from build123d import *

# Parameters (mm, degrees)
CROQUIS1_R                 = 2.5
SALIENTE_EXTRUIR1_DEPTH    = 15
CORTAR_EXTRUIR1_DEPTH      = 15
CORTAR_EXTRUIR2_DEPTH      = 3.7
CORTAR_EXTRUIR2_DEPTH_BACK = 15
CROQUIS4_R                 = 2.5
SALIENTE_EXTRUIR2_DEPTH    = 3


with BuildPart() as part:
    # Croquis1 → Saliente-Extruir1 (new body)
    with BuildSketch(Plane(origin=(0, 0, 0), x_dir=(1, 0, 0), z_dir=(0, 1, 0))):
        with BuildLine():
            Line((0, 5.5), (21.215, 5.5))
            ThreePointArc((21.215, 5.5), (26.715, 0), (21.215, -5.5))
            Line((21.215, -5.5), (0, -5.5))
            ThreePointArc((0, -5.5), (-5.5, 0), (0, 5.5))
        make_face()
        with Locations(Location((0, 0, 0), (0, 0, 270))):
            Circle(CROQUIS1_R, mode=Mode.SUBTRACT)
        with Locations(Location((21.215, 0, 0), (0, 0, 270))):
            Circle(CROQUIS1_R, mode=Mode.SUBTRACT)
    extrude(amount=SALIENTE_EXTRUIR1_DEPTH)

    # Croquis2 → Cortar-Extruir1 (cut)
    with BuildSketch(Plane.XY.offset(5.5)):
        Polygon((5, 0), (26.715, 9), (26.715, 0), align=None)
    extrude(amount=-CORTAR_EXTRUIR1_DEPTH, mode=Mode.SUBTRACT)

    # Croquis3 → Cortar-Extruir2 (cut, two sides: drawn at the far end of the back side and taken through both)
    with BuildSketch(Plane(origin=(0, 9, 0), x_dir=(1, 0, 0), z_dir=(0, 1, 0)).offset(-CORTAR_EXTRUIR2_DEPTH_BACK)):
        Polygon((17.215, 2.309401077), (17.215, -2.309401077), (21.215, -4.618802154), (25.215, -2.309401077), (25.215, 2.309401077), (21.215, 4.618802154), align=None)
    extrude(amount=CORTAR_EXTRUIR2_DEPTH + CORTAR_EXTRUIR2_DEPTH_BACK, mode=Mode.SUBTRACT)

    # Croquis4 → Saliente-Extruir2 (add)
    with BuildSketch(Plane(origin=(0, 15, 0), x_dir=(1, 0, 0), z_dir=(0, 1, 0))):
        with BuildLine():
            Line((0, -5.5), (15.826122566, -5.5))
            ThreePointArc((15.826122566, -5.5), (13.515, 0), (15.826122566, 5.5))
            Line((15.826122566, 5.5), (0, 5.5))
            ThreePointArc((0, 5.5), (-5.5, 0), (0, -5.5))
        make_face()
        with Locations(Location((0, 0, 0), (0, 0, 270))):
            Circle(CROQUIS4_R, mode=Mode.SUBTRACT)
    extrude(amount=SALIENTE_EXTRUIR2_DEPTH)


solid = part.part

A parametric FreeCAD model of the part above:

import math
import FreeCAD as App
import Part
import Sketcher
from FreeCAD import Vector
Q = App.Units.Quantity

doc = App.newDocument("Part")
body = doc.addObject("PartDesign::Body", "Body")

# Sketch on XZ plane
sketch1 = body.newObject("Sketcher::SketchObject", "Sketch")
sketch1.AttachmentSupport = (doc.getObject("XZ_Plane"), [""])
sketch1.MapMode = "FlatFace"
sketch1.addGeometry(Part.LineSegment(Vector(21.2, -5.5, 0), Vector(0, -5.5, 0)), False)
sketch1.addGeometry(Part.ArcOfCircle(Part.Circle(Vector(0, 0, 0), Vector(0, 0, 1), 5.5), math.radians(90), math.radians(270)), False)
sketch1.addGeometry(Part.LineSegment(Vector(0, 5.5, 0), Vector(21.2, 5.5, 0)), False)
sketch1.addGeometry(Part.ArcOfCircle(Part.Circle(Vector(21.2, 0, 0), Vector(0, 0, 1), 5.5), math.radians(-90), math.radians(90)), False)
sketch1.addGeometry(Part.Circle(Vector(21.2, 0, 0), Vector(0, 0, 1), 2.5), False)
sketch1.addGeometry(Part.Circle(Vector(0, 0, 0), Vector(0, 0, 1), 2.5), False)
sketch1.addConstraint(Sketcher.Constraint("Tangent", 0, 2, 1, 2))
sketch1.addConstraint(Sketcher.Constraint("Tangent", 1, 1, 2, 1))
sketch1.addConstraint(Sketcher.Constraint("Tangent", 2, 2, 3, 2))
sketch1.addConstraint(Sketcher.Constraint("Tangent", 3, 1, 0, 1))
sketch1.addConstraint(Sketcher.Constraint("Horizontal", 0))
sketch1.addConstraint(Sketcher.Constraint("Horizontal", 2))
sketch1.addConstraint(Sketcher.Constraint("Coincident", 1, 3, -1, 1))
sketch1.addConstraint(Sketcher.Constraint("Coincident", 5, 3, -1, 1))
sketch1.addConstraint(Sketcher.Constraint("Coincident", 4, 3, 3, 3))
sketch1.addConstraint(Sketcher.Constraint("Equal", 4, 5))
sketch1.addConstraint(Sketcher.Constraint("Diameter", 4, 5.0))
sketch1.addConstraint(Sketcher.Constraint("Radius", 1, 5.5))
sketch1.addConstraint(Sketcher.Constraint("DistanceX", 0, 2, 0, 1, 21.215))
pad1 = body.newObject("PartDesign::Pad", "Pad")
pad1.Profile = sketch1
pad1.Length = 15
pad1.Reversed = True

# Sketch on XY plane
sketch2 = body.newObject("Sketcher::SketchObject", "Sketch001")
sketch2.AttachmentSupport = (doc.getObject("XY_Plane"), [""])
sketch2.MapMode = "FlatFace"
sketch2.AttachmentOffset = App.Placement(Vector(0, 0, 5.5), App.Rotation())
sketch2.addGeometry(Part.LineSegment(Vector(27, 9, 0), Vector(5, 0, 0)), False)
sketch2.addGeometry(Part.LineSegment(Vector(5, 0, 0), Vector(27, 0, 0)), False)
sketch2.addGeometry(Part.LineSegment(Vector(27, 0, 0), Vector(27, 9, 0)), False)
sketch2.addConstraint(Sketcher.Constraint("Coincident", 0, 2, 1, 1))
sketch2.addConstraint(Sketcher.Constraint("Coincident", 1, 2, 2, 1))
sketch2.addConstraint(Sketcher.Constraint("Coincident", 2, 2, 0, 1))
sketch2.addConstraint(Sketcher.Constraint("Horizontal", 1))
sketch2.addConstraint(Sketcher.Constraint("Vertical", 2))
sketch2.addConstraint(Sketcher.Constraint("PointOnObject", 0, 2, -1))
sketch2.addConstraint(Sketcher.Constraint("DistanceY", 2, 1, 2, 2, 9.0))
sketch2.addConstraint(Sketcher.Constraint("DistanceX", -1, 1, 0, 2, 5.0))
sketch2.addConstraint(Sketcher.Constraint("DistanceX", 1, 1, 1, 2, 21.715))
pocket1 = body.newObject("PartDesign::Pocket", "Pocket")
pocket1.Profile = sketch2
pocket1.Length = 15

# Sketch on XZ plane
sketch3 = body.newObject("Sketcher::SketchObject", "Sketch002")
sketch3.AttachmentSupport = (doc.getObject("XZ_Plane"), [""])
sketch3.MapMode = "FlatFace"
sketch3.AttachmentOffset = App.Placement(Vector(0, 0, -9), App.Rotation())
sketch3.addGeometry(Part.LineSegment(Vector(17.2, -2.3, 0), Vector(17.2, 2.3, 0)), False)
sketch3.addGeometry(Part.LineSegment(Vector(17.2, 2.3, 0), Vector(21.2, 4.6, 0)), False)
sketch3.addGeometry(Part.LineSegment(Vector(21.2, 4.6, 0), Vector(25.2, 2.3, 0)), False)
sketch3.addGeometry(Part.LineSegment(Vector(25.2, 2.3, 0), Vector(25.2, -2.3, 0)), False)
sketch3.addGeometry(Part.LineSegment(Vector(25.2, -2.3, 0), Vector(21.2, -4.6, 0)), False)
sketch3.addGeometry(Part.LineSegment(Vector(21.2, -4.6, 0), Vector(17.2, -2.3, 0)), False)
sketch3.addConstraint(Sketcher.Constraint("Coincident", 0, 2, 1, 1))
sketch3.addConstraint(Sketcher.Constraint("Coincident", 1, 2, 2, 1))
sketch3.addConstraint(Sketcher.Constraint("Coincident", 2, 2, 3, 1))
sketch3.addConstraint(Sketcher.Constraint("Coincident", 3, 2, 4, 1))
sketch3.addConstraint(Sketcher.Constraint("Coincident", 4, 2, 5, 1))
sketch3.addConstraint(Sketcher.Constraint("Coincident", 5, 2, 0, 1))
sketch3.addConstraint(Sketcher.Constraint("Vertical", 0))
sketch3.addConstraint(Sketcher.Constraint("Vertical", 3))
sketch3.addConstraint(Sketcher.Constraint("Symmetric", 1, 2, 4, 2, -1))
sketch3.addConstraint(Sketcher.Constraint("Parallel", 1, 4))
sketch3.addConstraint(Sketcher.Constraint("Parallel", 2, 5))
sketch3.addConstraint(Sketcher.Constraint("Horizontal", 0, 2, 2, 2))
sketch3.addConstraint(Sketcher.Constraint("Horizontal", 3, 2, 5, 2))
sketch3.addConstraint(Sketcher.Constraint("Angle", 1, Q("30 deg")))
sketch3.addConstraint(Sketcher.Constraint("DistanceX", 0, 2, 1, 2, 4.0))
sketch3.addConstraint(Sketcher.Constraint("DistanceX", -1, 1, 0, 2, 17.215))
sketch3.addConstraint(Sketcher.Constraint("DistanceY", -1, 1, 0, 2, 2.309401))
pocket2 = body.newObject("PartDesign::Pocket", "Pocket001")
pocket2.Profile = sketch3
pocket2.Type = "TwoLengths"
pocket2.Length = 3.7
pocket2.Length2 = 15

# Sketch on XZ plane
sketch4 = body.newObject("Sketcher::SketchObject", "Sketch003")
sketch4.AttachmentSupport = (doc.getObject("XZ_Plane"), [""])
sketch4.MapMode = "FlatFace"
sketch4.AttachmentOffset = App.Placement(Vector(0, 0, -15), App.Rotation())
sketch4.addGeometry(Part.LineSegment(Vector(0, 5.5, 0), Vector(15.8, 5.5, 0)), False)
sketch4.addGeometry(Part.ArcOfCircle(Part.Circle(Vector(21.2, 0, 0), Vector(0, 0, 1), 7.7), math.radians(134), math.radians(226)), False)
sketch4.addGeometry(Part.LineSegment(Vector(15.8, -5.5, 0), Vector(0, -5.5, 0)), False)
sketch4.addGeometry(Part.ArcOfCircle(Part.Circle(Vector(0, 0, 0), Vector(0, 0, 1), 5.5), math.radians(90), math.radians(270)), False)
sketch4.addGeometry(Part.Circle(Vector(0, 0, 0), Vector(0, 0, 1), 2.5), False)
sketch4.addConstraint(Sketcher.Constraint("Coincident", 0, 2, 1, 1))
sketch4.addConstraint(Sketcher.Constraint("Coincident", 1, 2, 2, 1))
sketch4.addConstraint(Sketcher.Constraint("Tangent", 2, 2, 3, 2))
sketch4.addConstraint(Sketcher.Constraint("Tangent", 3, 1, 0, 1))
sketch4.addConstraint(Sketcher.Constraint("Horizontal", 0))
sketch4.addConstraint(Sketcher.Constraint("Horizontal", 2))
sketch4.addConstraint(Sketcher.Constraint("Coincident", 3, 3, -1, 1))
sketch4.addConstraint(Sketcher.Constraint("Coincident", 4, 3, -1, 1))
sketch4.addConstraint(Sketcher.Constraint("PointOnObject", 1, 3, -1))
sketch4.addConstraint(Sketcher.Constraint("Diameter", 4, 5.0))
sketch4.addConstraint(Sketcher.Constraint("Radius", 1, 7.7))
sketch4.addConstraint(Sketcher.Constraint("Radius", 3, 5.5))
sketch4.addConstraint(Sketcher.Constraint("DistanceX", -1, 1, 1, 3, 21.215))
pad2 = body.newObject("PartDesign::Pad", "Pad001")
pad2.Profile = sketch4
pad2.Length = 3
pad2.Reversed = True

doc.recompute()
